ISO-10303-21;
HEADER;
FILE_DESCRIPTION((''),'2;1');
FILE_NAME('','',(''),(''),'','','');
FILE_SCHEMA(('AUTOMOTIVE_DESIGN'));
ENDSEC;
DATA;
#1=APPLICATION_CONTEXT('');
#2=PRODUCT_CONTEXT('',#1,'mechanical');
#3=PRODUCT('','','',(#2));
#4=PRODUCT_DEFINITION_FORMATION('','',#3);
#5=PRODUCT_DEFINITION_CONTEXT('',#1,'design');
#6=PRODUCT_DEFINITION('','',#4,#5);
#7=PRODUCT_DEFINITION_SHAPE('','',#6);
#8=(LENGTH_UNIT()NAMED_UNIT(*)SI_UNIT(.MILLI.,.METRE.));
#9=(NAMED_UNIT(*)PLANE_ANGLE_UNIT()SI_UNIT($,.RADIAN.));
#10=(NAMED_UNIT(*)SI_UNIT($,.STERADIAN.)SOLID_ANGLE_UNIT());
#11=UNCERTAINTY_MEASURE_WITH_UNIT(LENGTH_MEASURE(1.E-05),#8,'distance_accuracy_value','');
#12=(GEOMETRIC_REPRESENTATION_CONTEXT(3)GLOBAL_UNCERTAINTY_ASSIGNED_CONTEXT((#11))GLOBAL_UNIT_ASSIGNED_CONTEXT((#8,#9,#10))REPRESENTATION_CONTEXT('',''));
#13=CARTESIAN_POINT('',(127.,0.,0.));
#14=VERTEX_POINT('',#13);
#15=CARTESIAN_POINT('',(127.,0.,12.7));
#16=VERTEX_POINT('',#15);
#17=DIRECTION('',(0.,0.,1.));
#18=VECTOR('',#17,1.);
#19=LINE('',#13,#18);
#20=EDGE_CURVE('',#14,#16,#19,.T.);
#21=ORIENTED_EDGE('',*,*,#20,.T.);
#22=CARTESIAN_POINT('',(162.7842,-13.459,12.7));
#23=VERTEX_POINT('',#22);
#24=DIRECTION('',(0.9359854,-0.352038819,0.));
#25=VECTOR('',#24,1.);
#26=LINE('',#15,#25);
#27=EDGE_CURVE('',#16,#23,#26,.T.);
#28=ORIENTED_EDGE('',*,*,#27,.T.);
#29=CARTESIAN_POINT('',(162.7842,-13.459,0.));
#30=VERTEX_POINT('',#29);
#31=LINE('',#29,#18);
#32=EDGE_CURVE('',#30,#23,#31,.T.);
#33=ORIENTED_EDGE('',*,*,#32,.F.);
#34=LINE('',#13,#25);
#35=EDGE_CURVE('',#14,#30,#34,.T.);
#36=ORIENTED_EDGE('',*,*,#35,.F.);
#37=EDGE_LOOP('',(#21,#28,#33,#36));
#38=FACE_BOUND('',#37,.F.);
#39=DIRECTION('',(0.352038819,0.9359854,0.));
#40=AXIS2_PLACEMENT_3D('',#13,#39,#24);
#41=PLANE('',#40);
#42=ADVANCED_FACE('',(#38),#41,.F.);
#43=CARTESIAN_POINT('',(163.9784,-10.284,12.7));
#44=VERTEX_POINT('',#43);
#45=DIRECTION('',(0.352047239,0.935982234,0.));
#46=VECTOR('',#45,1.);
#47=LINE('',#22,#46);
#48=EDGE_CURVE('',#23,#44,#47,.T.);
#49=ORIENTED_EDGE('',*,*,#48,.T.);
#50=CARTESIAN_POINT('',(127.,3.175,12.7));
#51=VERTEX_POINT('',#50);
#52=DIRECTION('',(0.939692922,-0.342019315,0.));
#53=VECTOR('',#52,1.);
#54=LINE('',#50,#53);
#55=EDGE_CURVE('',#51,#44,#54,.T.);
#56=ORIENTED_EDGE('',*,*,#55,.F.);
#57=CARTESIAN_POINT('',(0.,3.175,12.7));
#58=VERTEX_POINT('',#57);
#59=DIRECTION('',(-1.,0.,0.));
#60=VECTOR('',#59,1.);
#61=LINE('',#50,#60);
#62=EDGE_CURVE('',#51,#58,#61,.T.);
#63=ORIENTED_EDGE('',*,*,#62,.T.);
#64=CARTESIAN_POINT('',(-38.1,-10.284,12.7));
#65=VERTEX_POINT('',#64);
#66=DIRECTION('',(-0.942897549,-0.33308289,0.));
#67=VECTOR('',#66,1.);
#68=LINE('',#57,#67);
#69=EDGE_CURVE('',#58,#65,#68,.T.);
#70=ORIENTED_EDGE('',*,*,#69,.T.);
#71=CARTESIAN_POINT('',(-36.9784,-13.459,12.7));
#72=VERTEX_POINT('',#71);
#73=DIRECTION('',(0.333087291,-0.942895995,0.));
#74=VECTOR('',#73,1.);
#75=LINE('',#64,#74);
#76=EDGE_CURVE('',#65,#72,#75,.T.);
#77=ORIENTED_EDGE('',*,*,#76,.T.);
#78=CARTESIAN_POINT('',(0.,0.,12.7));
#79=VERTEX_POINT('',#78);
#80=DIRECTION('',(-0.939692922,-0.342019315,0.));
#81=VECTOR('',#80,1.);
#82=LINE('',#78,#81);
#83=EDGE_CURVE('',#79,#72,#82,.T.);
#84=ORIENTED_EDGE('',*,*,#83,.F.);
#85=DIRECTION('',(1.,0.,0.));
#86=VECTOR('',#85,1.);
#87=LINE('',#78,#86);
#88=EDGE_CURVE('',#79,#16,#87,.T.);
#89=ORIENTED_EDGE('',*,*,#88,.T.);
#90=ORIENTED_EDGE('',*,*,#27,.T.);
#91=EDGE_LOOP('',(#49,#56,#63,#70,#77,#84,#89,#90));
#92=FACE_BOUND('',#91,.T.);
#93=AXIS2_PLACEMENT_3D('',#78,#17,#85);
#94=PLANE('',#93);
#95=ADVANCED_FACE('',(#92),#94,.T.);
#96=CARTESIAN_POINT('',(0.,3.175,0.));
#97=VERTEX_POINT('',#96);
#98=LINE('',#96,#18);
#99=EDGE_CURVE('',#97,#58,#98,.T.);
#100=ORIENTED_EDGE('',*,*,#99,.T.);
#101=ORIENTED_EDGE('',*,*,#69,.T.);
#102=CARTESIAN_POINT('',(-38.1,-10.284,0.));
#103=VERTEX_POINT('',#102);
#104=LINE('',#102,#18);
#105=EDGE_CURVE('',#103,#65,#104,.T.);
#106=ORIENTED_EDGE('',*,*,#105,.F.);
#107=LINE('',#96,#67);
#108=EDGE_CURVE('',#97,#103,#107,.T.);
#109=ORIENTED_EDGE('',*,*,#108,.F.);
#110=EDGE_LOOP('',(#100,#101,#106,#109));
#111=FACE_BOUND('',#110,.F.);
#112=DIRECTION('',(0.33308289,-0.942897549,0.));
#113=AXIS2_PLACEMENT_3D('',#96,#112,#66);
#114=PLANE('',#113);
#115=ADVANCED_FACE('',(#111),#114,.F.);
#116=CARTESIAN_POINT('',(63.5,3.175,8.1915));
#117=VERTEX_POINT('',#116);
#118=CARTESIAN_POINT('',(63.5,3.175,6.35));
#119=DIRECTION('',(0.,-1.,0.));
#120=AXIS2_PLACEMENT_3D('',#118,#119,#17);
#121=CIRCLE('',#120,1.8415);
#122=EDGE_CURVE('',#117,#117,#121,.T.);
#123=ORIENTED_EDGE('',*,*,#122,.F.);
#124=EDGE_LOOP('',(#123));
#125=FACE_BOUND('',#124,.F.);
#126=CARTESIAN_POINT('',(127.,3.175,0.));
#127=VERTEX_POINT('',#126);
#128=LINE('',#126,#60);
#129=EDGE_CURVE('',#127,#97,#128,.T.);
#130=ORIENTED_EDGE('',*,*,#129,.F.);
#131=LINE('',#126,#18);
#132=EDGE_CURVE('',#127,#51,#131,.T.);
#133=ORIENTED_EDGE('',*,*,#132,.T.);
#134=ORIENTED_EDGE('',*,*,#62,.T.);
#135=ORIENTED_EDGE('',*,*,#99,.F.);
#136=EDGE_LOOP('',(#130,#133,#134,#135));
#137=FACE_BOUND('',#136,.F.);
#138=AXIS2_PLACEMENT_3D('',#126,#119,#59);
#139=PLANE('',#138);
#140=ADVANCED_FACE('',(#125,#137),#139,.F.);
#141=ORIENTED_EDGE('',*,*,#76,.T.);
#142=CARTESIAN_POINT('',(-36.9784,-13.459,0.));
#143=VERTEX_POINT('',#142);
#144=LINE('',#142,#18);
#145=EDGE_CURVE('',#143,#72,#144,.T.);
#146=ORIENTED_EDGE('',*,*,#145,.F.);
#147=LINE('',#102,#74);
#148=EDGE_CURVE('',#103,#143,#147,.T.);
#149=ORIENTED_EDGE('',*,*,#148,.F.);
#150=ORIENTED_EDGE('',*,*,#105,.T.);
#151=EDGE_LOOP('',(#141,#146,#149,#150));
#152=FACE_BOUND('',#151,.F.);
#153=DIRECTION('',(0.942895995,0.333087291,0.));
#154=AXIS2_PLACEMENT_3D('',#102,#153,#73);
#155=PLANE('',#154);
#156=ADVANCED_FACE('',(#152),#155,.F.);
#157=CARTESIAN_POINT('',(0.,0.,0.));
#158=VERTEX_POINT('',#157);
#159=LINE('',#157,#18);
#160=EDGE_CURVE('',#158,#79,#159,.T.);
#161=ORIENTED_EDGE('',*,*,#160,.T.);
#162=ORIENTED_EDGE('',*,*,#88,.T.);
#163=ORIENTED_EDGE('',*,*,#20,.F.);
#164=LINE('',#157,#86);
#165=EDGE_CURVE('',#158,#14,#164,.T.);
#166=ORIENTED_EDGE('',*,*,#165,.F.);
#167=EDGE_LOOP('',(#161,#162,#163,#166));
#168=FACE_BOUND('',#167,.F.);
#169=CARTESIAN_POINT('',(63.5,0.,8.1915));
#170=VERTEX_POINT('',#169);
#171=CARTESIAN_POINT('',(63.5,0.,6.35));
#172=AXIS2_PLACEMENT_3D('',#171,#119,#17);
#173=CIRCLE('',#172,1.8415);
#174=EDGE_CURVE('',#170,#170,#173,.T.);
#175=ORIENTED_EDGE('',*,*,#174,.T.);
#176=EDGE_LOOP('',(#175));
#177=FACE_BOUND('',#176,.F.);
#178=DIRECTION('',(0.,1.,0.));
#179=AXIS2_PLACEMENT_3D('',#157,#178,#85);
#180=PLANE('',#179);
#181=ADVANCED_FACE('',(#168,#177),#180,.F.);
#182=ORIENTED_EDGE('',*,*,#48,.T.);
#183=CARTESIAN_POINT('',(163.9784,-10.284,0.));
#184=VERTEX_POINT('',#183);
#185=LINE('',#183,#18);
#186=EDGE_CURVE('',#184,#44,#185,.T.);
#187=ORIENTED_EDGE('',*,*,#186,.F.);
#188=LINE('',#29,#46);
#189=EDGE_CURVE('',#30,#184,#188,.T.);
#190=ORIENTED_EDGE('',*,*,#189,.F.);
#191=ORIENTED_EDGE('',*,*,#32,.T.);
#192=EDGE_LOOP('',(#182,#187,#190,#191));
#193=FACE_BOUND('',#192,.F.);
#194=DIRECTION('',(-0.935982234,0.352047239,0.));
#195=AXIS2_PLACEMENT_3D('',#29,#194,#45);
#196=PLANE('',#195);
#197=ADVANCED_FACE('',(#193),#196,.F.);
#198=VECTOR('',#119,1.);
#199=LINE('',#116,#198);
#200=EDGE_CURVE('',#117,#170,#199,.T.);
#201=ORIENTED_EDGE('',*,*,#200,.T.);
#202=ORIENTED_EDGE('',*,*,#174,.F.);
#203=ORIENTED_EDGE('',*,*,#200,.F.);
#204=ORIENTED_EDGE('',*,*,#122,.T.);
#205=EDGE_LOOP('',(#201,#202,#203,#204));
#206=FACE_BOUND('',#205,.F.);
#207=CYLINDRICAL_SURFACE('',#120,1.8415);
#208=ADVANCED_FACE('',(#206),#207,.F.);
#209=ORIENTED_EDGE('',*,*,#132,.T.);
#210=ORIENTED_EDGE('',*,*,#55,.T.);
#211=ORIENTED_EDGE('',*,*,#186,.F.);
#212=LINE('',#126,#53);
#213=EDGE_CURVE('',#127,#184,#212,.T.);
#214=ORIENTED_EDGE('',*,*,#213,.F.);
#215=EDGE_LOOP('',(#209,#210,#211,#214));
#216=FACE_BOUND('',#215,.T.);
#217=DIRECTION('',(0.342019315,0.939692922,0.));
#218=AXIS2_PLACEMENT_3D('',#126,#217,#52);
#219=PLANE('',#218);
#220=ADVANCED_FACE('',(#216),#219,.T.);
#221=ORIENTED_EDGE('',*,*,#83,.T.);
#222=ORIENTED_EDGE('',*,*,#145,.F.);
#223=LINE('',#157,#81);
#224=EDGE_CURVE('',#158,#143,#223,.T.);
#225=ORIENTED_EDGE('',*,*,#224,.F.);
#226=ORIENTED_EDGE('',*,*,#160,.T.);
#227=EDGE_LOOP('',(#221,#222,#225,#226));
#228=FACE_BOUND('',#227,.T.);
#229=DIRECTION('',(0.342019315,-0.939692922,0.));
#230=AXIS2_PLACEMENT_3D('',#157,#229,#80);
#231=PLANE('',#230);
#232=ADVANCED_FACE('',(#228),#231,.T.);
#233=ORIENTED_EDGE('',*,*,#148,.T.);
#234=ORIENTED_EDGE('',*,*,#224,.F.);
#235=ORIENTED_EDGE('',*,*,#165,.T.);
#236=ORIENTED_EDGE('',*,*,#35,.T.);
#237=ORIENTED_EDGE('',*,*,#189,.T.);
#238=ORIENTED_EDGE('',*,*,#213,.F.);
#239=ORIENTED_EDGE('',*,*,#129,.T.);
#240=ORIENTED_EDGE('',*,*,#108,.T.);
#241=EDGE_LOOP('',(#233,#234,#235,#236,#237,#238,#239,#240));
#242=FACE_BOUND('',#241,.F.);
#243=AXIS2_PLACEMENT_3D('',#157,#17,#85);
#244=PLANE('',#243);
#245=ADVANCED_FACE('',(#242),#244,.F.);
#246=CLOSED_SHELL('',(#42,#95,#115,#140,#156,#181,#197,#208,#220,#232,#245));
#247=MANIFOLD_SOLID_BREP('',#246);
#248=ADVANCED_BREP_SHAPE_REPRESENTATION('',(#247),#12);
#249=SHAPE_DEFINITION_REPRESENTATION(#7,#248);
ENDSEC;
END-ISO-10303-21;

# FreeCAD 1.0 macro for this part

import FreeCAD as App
import Part
import Sketcher
from FreeCAD import Vector
Q = App.Units.Quantity


def add_polygon(sketch, points):
    """Adds a closed chain of lines whose ends are joined by coincident constraints."""
    first, n = sketch.GeometryCount, len(points)
    for a, b in zip(points, points[1:] + points[:1]):
        sketch.addGeometry(Part.LineSegment(App.Vector(*a, 0), App.Vector(*b, 0)), False)
    for i in range(n):
        sketch.addConstraint(Sketcher.Constraint("Coincident", first + i, 2, first + (i + 1) % n, 1))

doc = App.newDocument("Part")
body = doc.addObject("PartDesign::Body", "Body")

# Sketch on XY plane
sketch1 = doc.addObject("Sketcher::SketchObject", "Sketch")
body.addObject(sketch1)
sketch1.AttachmentSupport = (doc.XY_Plane, [""])
sketch1.MapMode = "FlatFace"
add_polygon(sketch1, [(-36.9784, -13.459), (0, 0), (127, 0), (162.7842, -13.459), (163.9784, -10.284), (127, 3.175), (0, 3.175), (-38.1, -10.284)])  # lines 0-7
sketch1.addConstraint([
    Sketcher.Constraint("Horizontal", 1),
    Sketcher.Constraint("Horizontal", 5),
    Sketcher.Constraint("Coincident", 0, 2, -1, 1),
    Sketcher.Constraint("PointOnObject", 5, 2, -2),
    Sketcher.Constraint("Perpendicular", 2, 3),
    Sketcher.Constraint("Perpendicular", 6, 7),
    Sketcher.Constraint("Horizontal", 3, 2, 6, 2),
    Sketcher.Constraint("Horizontal", 2, 2, 7, 2),
    Sketcher.Constraint("Vertical", 1, 2, 4, 2),
    Sketcher.Constraint("Equal", 0, 4),
    Sketcher.Constraint("DistanceX", 1, 1, 1, 2, Q("5 in")),
    Sketcher.Constraint("Angle", 0, Q("20 deg")),
    Sketcher.Constraint("Angle", 4, Q("160 deg")),
    Sketcher.Constraint("DistanceX", 6, 2, -1, 1, Q("1.5 in")),
    Sketcher.Constraint("DistanceY", -1, 1, 4, 2, Q("0.125 in")),
])
pad1 = doc.addObject("PartDesign::Pad", "Pad")
body.addObject(pad1)
pad1.Profile = sketch1
pad1.Length = Q("0.5 in")

# Sketch on XZ plane
sketch2 = doc.addObject("Sketcher::SketchObject", "Sketch001")
body.addObject(sketch2)
sketch2.AttachmentSupport = (doc.XZ_Plane, [""])
sketch2.MapMode = "FlatFace"
sketch2.AttachmentOffset = App.Placement(Vector(0, 0, -0.125 * 25.4), App.Rotation())
sketch2.addGeometry(Part.Circle(Vector(63.5, 6.35, 0), Vector(0, 0, 1), 1.8415), False)
sketch2.addConstraint([
    Sketcher.Constraint("Diameter", 0, Q("0.145 in")),
    Sketcher.Constraint("DistanceX", -1, 1, 0, 3, Q("2.5 in")),
    Sketcher.Constraint("DistanceY", -1, 1, 0, 3, Q("0.25 in")),
])
doc.recompute()
hole = doc.addObject("PartDesign::Hole", "Hole")
body.addObject(hole)
hole.Profile = sketch2
hole.ThreadType = "None"
hole.Diameter = Q("0.145 in")
hole.DepthType = "ThroughAll"
hole.Reversed = True

doc.recompute()
